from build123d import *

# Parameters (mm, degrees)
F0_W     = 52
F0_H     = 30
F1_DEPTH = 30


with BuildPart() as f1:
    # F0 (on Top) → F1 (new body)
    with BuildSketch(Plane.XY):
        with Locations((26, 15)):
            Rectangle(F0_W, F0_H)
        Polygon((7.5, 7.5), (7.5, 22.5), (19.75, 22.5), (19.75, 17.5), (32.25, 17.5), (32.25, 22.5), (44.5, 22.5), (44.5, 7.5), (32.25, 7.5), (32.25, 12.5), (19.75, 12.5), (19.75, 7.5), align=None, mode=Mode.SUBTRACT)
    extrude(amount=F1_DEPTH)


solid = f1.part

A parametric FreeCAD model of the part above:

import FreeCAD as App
import Part
import Sketcher
from FreeCAD import Vector

doc = App.newDocument("Part")
body = doc.addObject("PartDesign::Body", "Body")

sketch1 = doc.addObject("Sketcher::SketchObject", "Sketch")
body.addObject(sketch1)
sketch1.AttachmentSupport = (doc.XY_Plane, [""])
sketch1.MapMode = "FlatFace"
sketch1.addGeometry([
    Part.LineSegment(Vector(0, 30, 0), Vector(0, 0, 0)),
    Part.LineSegment(Vector(0, 0, 0), Vector(52, 0, 0)),
    Part.LineSegment(Vector(52, 0, 0), Vector(52, 30, 0)),
    Part.LineSegment(Vector(52, 30, 0), Vector(0, 30, 0)),
    Part.LineSegment(Vector(20, 8, 0), Vector(8, 8, 0)),
    Part.LineSegment(Vector(8, 8, 0), Vector(8, 22, 0)),
    Part.LineSegment(Vector(8, 22, 0), Vector(20, 22, 0)),
    Part.LineSegment(Vector(20, 22, 0), Vector(20, 18, 0)),
    Part.LineSegment(Vector(20, 18, 0), Vector(32, 18, 0)),
    Part.LineSegment(Vector(32, 18, 0), Vector(32, 22, 0)),
    Part.LineSegment(Vector(32, 22, 0), Vector(44, 22, 0)),
    Part.LineSegment(Vector(44, 22, 0), Vector(44, 8, 0)),
    Part.LineSegment(Vector(44, 8, 0), Vector(32, 8, 0)),
    Part.LineSegment(Vector(32, 8, 0), Vector(32, 12, 0)),
    Part.LineSegment(Vector(32, 12, 0), Vector(20, 12, 0)),
    Part.LineSegment(Vector(20, 12, 0), Vector(20, 8, 0)),
], False)
sketch1.addConstraint([
    Sketcher.Constraint("Coincident", 0, 2, 1, 1),
    Sketcher.Constraint("Coincident", 1, 2, 2, 1),
    Sketcher.Constraint("Coincident", 2, 2, 3, 1),
    Sketcher.Constraint("Coincident", 3, 2, 0, 1),
    Sketcher.Constraint("Coincident", 4, 2, 5, 1),
    Sketcher.Constraint("Coincident", 5, 2, 6, 1),
    Sketcher.Constraint("Coincident", 6, 2, 7, 1),
    Sketcher.Constraint("Coincident", 7, 2, 8, 1),
    Sketcher.Constraint("Coincident", 8, 2, 9, 1),
    Sketcher.Constraint("Coincident", 9, 2, 10, 1),
    Sketcher.Constraint("Coincident", 10, 2, 11, 1),
    Sketcher.Constraint("Coincident", 11, 2, 12, 1),
    Sketcher.Constraint("Coincident", 12, 2, 13, 1),
    Sketcher.Constraint("Coincident", 13, 2, 14, 1),
    Sketcher.Constraint("Coincident", 14, 2, 15, 1),
    Sketcher.Constraint("Coincident", 15, 2, 4, 1),
    Sketcher.Constraint("Vertical", 0),
    Sketcher.Constraint("Horizontal", 1),
    Sketcher.Constraint("Vertical", 2),
    Sketcher.Constraint("Horizontal", 3),
    Sketcher.Constraint("Horizontal", 4),
    Sketcher.Constraint("Vertical", 5),
    Sketcher.Constraint("Horizontal", 6),
    Sketcher.Constraint("Vertical", 7),
    Sketcher.Constraint("Horizontal", 8),
    Sketcher.Constraint("Vertical", 9),
    Sketcher.Constraint("Horizontal", 10),
    Sketcher.Constraint("Vertical", 11),
    Sketcher.Constraint("Horizontal", 12),
    Sketcher.Constraint("Vertical", 13),
    Sketcher.Constraint("Horizontal", 14),
    Sketcher.Constraint("Vertical", 15),
    Sketcher.Constraint("Coincident", 0, 2, -1, 1),
    Sketcher.Constraint("Horizontal", 6, 2, 9, 2),
    Sketcher.Constraint("Horizontal", 4, 2, 11, 2),
    Sketcher.Constraint("Vertical", 9, 2, 12, 2),
    Sketcher.Constraint("Vertical", 7, 2, 14, 2),
    Sketcher.Constraint("Equal", 6, 10),
    Sketcher.Constraint("Equal", 9, 13),
    Sketcher.Constraint("DistanceX", 1, 1, 1, 2, 52.0),
    Sketcher.Constraint("DistanceY", 0, 2, 0, 1, 30.0),
    Sketcher.Constraint("DistanceY", 5, 1, 5, 2, 15.0),
    Sketcher.Constraint("DistanceY", 7, 2, 7, 1, 5.0),
    Sketcher.Constraint("DistanceX", 8, 1, 8, 2, 12.5),
    Sketcher.Constraint("DistanceX", 4, 2, 4, 1, 12.25),
    Sketcher.Constraint("DistanceX", -1, 1, 4, 2, 7.5),
    Sketcher.Constraint("DistanceY", -1, 1, 4, 2, 7.5),
])
pad1 = doc.addObject("PartDesign::Pad", "Pad")
body.addObject(pad1)
pad1.Profile = sketch1
pad1.Length = 30

doc.recompute()
